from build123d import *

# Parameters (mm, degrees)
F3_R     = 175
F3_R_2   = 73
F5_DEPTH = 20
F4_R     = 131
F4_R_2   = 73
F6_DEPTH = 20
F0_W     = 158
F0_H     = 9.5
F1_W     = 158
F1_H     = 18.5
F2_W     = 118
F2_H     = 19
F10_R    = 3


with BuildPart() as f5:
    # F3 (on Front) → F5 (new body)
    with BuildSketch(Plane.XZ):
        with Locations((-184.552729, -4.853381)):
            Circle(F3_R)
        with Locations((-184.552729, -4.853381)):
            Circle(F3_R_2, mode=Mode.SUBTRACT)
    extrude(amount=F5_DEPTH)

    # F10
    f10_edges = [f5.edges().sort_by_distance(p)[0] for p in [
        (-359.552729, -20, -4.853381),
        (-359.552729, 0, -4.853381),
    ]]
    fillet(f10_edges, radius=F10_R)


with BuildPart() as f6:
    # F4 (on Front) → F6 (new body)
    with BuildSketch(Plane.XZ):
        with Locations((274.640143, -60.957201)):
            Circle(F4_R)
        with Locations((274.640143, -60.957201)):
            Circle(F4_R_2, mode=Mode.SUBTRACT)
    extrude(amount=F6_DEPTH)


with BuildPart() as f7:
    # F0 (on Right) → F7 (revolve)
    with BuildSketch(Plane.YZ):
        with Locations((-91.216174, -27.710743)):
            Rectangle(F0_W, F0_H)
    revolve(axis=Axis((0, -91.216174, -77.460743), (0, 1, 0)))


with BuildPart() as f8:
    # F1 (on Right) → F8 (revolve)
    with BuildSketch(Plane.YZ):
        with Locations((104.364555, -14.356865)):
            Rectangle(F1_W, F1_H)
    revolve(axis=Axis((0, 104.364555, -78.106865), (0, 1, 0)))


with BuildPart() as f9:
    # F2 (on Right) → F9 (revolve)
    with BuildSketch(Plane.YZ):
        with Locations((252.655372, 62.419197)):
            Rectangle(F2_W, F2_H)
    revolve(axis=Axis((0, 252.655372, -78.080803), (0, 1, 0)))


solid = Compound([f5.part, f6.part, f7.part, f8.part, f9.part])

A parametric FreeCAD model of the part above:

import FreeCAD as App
import Part
import Sketcher
from FreeCAD import Vector


def edges_at(feature, points):
    """Names of the edges that pass closest to the given points."""
    edges = feature.Shape.Edges
    near = lambda p: min(range(len(edges)), key=lambda i: edges[i].distToShape(Part.Vertex(*p))[0])
    return sorted({f"Edge{near(p) + 1}" for p in points})


def add_polygon(sketch, points):
    """Adds a closed chain of lines whose ends are joined by coincident constraints."""
    first, n = sketch.GeometryCount, len(points)
    for a, b in zip(points, points[1:] + points[:1]):
        sketch.addGeometry(Part.LineSegment(App.Vector(*a, 0), App.Vector(*b, 0)), False)
    for i in range(n):
        sketch.addConstraint(Sketcher.Constraint("Coincident", first + i, 2, first + (i + 1) % n, 1))

doc = App.newDocument("Part")
body = doc.addObject("PartDesign::Body", "Body")

# Sketch on XZ plane
sketch1 = body.newObject("Sketcher::SketchObject", "Sketch")
sketch1.AttachmentSupport = (doc.getObject("XZ_Plane"), [""])
sketch1.MapMode = "FlatFace"
sketch1.addGeometry(Part.Circle(Vector(-184.552729, -4.853381, 0), Vector(0, 0, 1), 175), False)
sketch1.addGeometry(Part.Circle(Vector(-184.552729, -4.853381, 0), Vector(0, 0, 1), 73), False)
sketch1.addConstraint(Sketcher.Constraint("Coincident", 1, 3, 0, 3))
sketch1.addConstraint(Sketcher.Constraint("Diameter", 0, 350.0))
sketch1.addConstraint(Sketcher.Constraint("Diameter", 1, 146.0))
sketch1.addConstraint(Sketcher.Constraint("DistanceX", 0, 3, -1, 1, 184.552729))
sketch1.addConstraint(Sketcher.Constraint("DistanceY", 0, 3, -1, 1, 4.853381))
pad1 = body.newObject("PartDesign::Pad", "Pad")
pad1.Profile = sketch1
pad1.Length = 20
doc.recompute()

fillet = body.newObject("PartDesign::Fillet", "Fillet")
fillet.Base = (pad1, edges_at(pad1, [(-359.553, -20, -4.853), (-359.553, 0, -4.853)]))
fillet.Radius = 3
body2 = doc.addObject("PartDesign::Body", "Body001")

# Sketch on XZ plane
sketch2 = body2.newObject("Sketcher::SketchObject", "Sketch001")
sketch2.AttachmentSupport = (doc.getObject("XZ_Plane001"), [""])
sketch2.MapMode = "FlatFace"
sketch2.addGeometry(Part.Circle(Vector(274.640143, -60.957201, 0), Vector(0, 0, 1), 131), False)
sketch2.addGeometry(Part.Circle(Vector(274.640143, -60.957201, 0), Vector(0, 0, 1), 73), False)
sketch2.addConstraint(Sketcher.Constraint("Coincident", 1, 3, 0, 3))
sketch2.addConstraint(Sketcher.Constraint("Diameter", 0, 262.0))
sketch2.addConstraint(Sketcher.Constraint("Diameter", 1, 146.0))
sketch2.addConstraint(Sketcher.Constraint("DistanceY", 0, 3, -1, 1, 60.957201))
sketch2.addConstraint(Sketcher.Constraint("DistanceX", -1, 1, 0, 3, 274.640143))
pad2 = body2.newObject("PartDesign::Pad", "Pad001")
pad2.Profile = sketch2
pad2.Length = 20
body3 = doc.addObject("PartDesign::Body", "Body002")

# Sketch on YZ plane
sketch3 = body3.newObject("Sketcher::SketchObject", "Sketch002")
sketch3.AttachmentSupport = (doc.getObject("YZ_Plane002"), [""])
sketch3.MapMode = "FlatFace"
add_polygon(sketch3, [(-170.216174, -22.960743), (-170.216174, -32.460743), (-12.216174, -32.460743), (-12.216174, -22.960743)])  # lines 0-3
sketch3.addGeometry(Part.LineSegment(Vector(-170.216174, -77.460743, 0), Vector(-12.216174, -77.460743, 0)), True)  # axis
sketch3.addConstraint(Sketcher.Constraint("Vertical", 0))
sketch3.addConstraint(Sketcher.Constraint("Horizontal", 1))
sketch3.addConstraint(Sketcher.Constraint("Vertical", 2))
sketch3.addConstraint(Sketcher.Constraint("Horizontal", 3))
sketch3.addConstraint(Sketcher.Constraint("Horizontal", 4))
sketch3.addConstraint(Sketcher.Constraint("Vertical", 3, 2, 4, 1))
sketch3.addConstraint(Sketcher.Constraint("Vertical", 2, 2, 4, 2))
sketch3.addConstraint(Sketcher.Constraint("DistanceX", 1, 1, 1, 2, 158.0))
sketch3.addConstraint(Sketcher.Constraint("DistanceY", 0, 2, 0, 1, 9.5))
sketch3.addConstraint(Sketcher.Constraint("DistanceY", 4, 1, 0, 2, 45.0))
sketch3.addConstraint(Sketcher.Constraint("DistanceX", 0, 2, -1, 1, 170.216174))
sketch3.addConstraint(Sketcher.Constraint("DistanceY", 0, 2, -1, 1, 32.460743))
revolution = body3.newObject("PartDesign::Revolution", "Revolution")
revolution.Profile = sketch3
revolution.ReferenceAxis = (sketch3, ["Axis0"])
revolution.Angle = 360
body4 = doc.addObject("PartDesign::Body", "Body003")

# Sketch on YZ plane
sketch4 = body4.newObject("Sketcher::SketchObject", "Sketch003")
sketch4.AttachmentSupport = (doc.getObject("YZ_Plane003"), [""])
sketch4.MapMode = "FlatFace"
add_polygon(sketch4, [(25.364555, -5.106865), (25.364555, -23.606865), (183.364555, -23.606865), (183.364555, -5.106865)])  # lines 0-3
sketch4.addGeometry(Part.LineSegment(Vector(25.364555, -78.106865, 0), Vector(183.364555, -78.106865, 0)), True)  # axis
sketch4.addConstraint(Sketcher.Constraint("Vertical", 0))
sketch4.addConstraint(Sketcher.Constraint("Horizontal", 1))
sketch4.addConstraint(Sketcher.Constraint("Vertical", 2))
sketch4.addConstraint(Sketcher.Constraint("Horizontal", 3))
sketch4.addConstraint(Sketcher.Constraint("Horizontal", 4))
sketch4.addConstraint(Sketcher.Constraint("Vertical", 3, 2, 4, 1))
sketch4.addConstraint(Sketcher.Constraint("Vertical", 2, 2, 4, 2))
sketch4.addConstraint(Sketcher.Constraint("DistanceX", 1, 1, 1, 2, 158.0))
sketch4.addConstraint(Sketcher.Constraint("DistanceY", 0, 2, 0, 1, 18.5))
sketch4.addConstraint(Sketcher.Constraint("DistanceY", 4, 1, 3, 2, 73.0))
sketch4.addConstraint(Sketcher.Constraint("DistanceX", -1, 1, 0, 2, 25.364555))
sketch4.addConstraint(Sketcher.Constraint("DistanceY", 0, 2, -1, 1, 23.606865))
revolution2 = body4.newObject("PartDesign::Revolution", "Revolution001")
revolution2.Profile = sketch4
revolution2.ReferenceAxis = (sketch4, ["Axis0"])
revolution2.Angle = 360
body5 = doc.addObject("PartDesign::Body", "Body004")

# Sketch on YZ plane
sketch5 = body5.newObject("Sketcher::SketchObject", "Sketch004")
sketch5.AttachmentSupport = (doc.getObject("YZ_Plane004"), [""])
sketch5.MapMode = "FlatFace"
add_polygon(sketch5, [(193.655372, 71.919197), (193.655372, 52.919197), (311.655372, 52.919197), (311.655372, 71.919197)])  # lines 0-3
sketch5.addGeometry(Part.LineSegment(Vector(193.655372, -78.080803, 0), Vector(311.655372, -78.080803, 0)), True)  # axis
sketch5.addConstraint(Sketcher.Constraint("Vertical", 0))
sketch5.addConstraint(Sketcher.Constraint("Horizontal", 1))
sketch5.addConstraint(Sketcher.Constraint("Vertical", 2))
sketch5.addConstraint(Sketcher.Constraint("Horizontal", 3))
sketch5.addConstraint(Sketcher.Constraint("Horizontal", 4))
sketch5.addConstraint(Sketcher.Constraint("Vertical", 3, 2, 4, 1))
sketch5.addConstraint(Sketcher.Constraint("Vertical", 2, 2, 4, 2))
sketch5.addConstraint(Sketcher.Constraint("DistanceX", 1, 1, 1, 2, 118.0))
sketch5.addConstraint(Sketcher.Constraint("DistanceY", 0, 2, 0, 1, 19.0))
sketch5.addConstraint(Sketcher.Constraint("DistanceY", 4, 1, 0, 2, 131.0))
sketch5.addConstraint(Sketcher.Constraint("DistanceX", -1, 1, 0, 2, 193.655372))
sketch5.addConstraint(Sketcher.Constraint("DistanceY", -1, 1, 0, 2, 52.919197))
revolution3 = body5.newObject("PartDesign::Revolution", "Revolution002")
revolution3.Profile = sketch5
revolution3.ReferenceAxis = (sketch5, ["Axis0"])
revolution3.Angle = 360

doc.recompute()
